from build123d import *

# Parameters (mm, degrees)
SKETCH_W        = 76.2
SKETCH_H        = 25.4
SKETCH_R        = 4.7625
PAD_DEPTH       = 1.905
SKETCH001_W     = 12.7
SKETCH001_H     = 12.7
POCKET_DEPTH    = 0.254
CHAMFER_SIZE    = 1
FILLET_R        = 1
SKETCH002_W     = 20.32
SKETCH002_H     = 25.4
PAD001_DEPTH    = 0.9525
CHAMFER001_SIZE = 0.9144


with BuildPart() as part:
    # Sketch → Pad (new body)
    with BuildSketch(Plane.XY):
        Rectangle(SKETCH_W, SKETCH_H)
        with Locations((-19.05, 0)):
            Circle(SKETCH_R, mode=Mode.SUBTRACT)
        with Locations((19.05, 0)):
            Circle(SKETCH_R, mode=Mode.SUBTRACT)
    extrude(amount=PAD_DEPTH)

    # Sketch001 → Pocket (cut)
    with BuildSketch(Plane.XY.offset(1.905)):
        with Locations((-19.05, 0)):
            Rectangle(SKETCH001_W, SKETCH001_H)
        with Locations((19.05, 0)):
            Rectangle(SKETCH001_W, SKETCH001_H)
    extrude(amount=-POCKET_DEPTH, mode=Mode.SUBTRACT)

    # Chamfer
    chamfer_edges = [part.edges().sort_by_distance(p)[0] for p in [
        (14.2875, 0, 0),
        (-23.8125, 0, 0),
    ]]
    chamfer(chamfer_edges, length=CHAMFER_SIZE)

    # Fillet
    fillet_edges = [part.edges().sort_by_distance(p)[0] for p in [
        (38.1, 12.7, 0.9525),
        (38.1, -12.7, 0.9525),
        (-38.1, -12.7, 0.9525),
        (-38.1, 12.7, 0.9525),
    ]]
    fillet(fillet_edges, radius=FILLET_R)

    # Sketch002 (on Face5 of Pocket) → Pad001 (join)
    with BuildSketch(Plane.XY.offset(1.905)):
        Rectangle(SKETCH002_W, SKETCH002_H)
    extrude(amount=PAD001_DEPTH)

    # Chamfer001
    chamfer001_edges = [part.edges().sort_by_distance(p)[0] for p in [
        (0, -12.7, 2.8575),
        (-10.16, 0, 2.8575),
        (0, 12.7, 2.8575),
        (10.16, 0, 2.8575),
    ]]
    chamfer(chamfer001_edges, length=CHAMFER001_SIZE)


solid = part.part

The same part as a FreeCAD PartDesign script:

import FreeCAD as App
import Part
import Sketcher

V = App.Vector
Q = App.Units.Quantity


def edges_at(feature, points):
    """Names of the edges that pass closest to the given points."""
    edges = feature.Shape.Edges
    near = lambda p: min(range(len(edges)), key=lambda i: edges[i].distToShape(Part.Vertex(*p))[0])
    return sorted({f"Edge{near(p) + 1}" for p in points})

doc = App.newDocument("Part")
body = doc.addObject("PartDesign::Body", "Body")

sketch1 = body.newObject("Sketcher::SketchObject", "Sketch")
sketch1.AttachmentSupport = (doc.getObject("XY_Plane"), [""])
sketch1.MapMode = "FlatFace"
sketch1.addGeometry([
    Part.LineSegment(V(-38.1, 12.7, 0), V(-38.1, -12.7, 0)),
    Part.LineSegment(V(-38.1, -12.7, 0), V(38.1, -12.7, 0)),
    Part.LineSegment(V(38.1, -12.7, 0), V(38.1, 12.7, 0)),
    Part.LineSegment(V(38.1, 12.7, 0), V(-38.1, 12.7, 0)),
    Part.Circle(V(-19.1, 0, 0), V(0, 0, 1), 4.8),
    Part.Circle(V(19.1, 0, 0), V(0, 0, 1), 4.8),
], False)
sketch1.addConstraint([
    Sketcher.Constraint("Coincident", 0, 2, 1, 1),
    Sketcher.Constraint("Coincident", 1, 2, 2, 1),
    Sketcher.Constraint("Coincident", 2, 2, 3, 1),
    Sketcher.Constraint("Coincident", 3, 2, 0, 1),
    Sketcher.Constraint("Vertical", 0),
    Sketcher.Constraint("Horizontal", 1),
    Sketcher.Constraint("Vertical", 2),
    Sketcher.Constraint("Horizontal", 3),
    Sketcher.Constraint("Equal", 4, 5),
    Sketcher.Constraint("Symmetric", 4, 3, 5, 3, -1, 1),
    Sketcher.Constraint("Symmetric", 0, 2, 2, 2, -1, 1),
    Sketcher.Constraint("PointOnObject", 4, 3, -1),
    Sketcher.Constraint("DistanceX", 1, 1, 1, 2, Q("3 in")),
    Sketcher.Constraint("DistanceY", 0, 2, 0, 1, Q("1 in")),
    Sketcher.Constraint("Diameter", 4, Q("0.375 in")),
    Sketcher.Constraint("DistanceX", 4, 3, 5, 3, Q("1.5 in")),
])
pad1 = body.newObject("PartDesign::Pad", "Pad")
pad1.Profile = sketch1
pad1.Length = Q("0.075 in")

sketch2 = body.newObject("Sketcher::SketchObject", "Sketch001")
sketch2.AttachmentSupport = (doc.getObject("XY_Plane"), [""])
sketch2.MapMode = "FlatFace"
sketch2.AttachmentOffset = App.Placement(V(0, 0, 0.075 * 25.4), App.Rotation())
sketch2.addGeometry([
    Part.LineSegment(V(-25, 6, 0), V(-25, -6, 0)),
    Part.LineSegment(V(-25, -6, 0), V(-13, -6, 0)),
    Part.LineSegment(V(-13, -6, 0), V(-13, 6, 0)),
    Part.LineSegment(V(-13, 6, 0), V(-25, 6, 0)),
    Part.LineSegment(V(13, 6, 0), V(13, -6, 0)),
    Part.LineSegment(V(13, -6, 0), V(25, -6, 0)),
    Part.LineSegment(V(25, -6, 0), V(25, 6, 0)),
    Part.LineSegment(V(25, 6, 0), V(13, 6, 0)),
], False)
sketch2.addConstraint([
    Sketcher.Constraint("Coincident", 0, 2, 1, 1),
    Sketcher.Constraint("Coincident", 1, 2, 2, 1),
    Sketcher.Constraint("Coincident", 2, 2, 3, 1),
    Sketcher.Constraint("Coincident", 3, 2, 0, 1),
    Sketcher.Constraint("Coincident", 4, 2, 5, 1),
    Sketcher.Constraint("Coincident", 5, 2, 6, 1),
    Sketcher.Constraint("Coincident", 6, 2, 7, 1),
    Sketcher.Constraint("Coincident", 7, 2, 4, 1),
    Sketcher.Constraint("Vertical", 0),
    Sketcher.Constraint("Horizontal", 1),
    Sketcher.Constraint("Vertical", 2),
    Sketcher.Constraint("Horizontal", 3),
    Sketcher.Constraint("Vertical", 4),
    Sketcher.Constraint("Horizontal", 5),
    Sketcher.Constraint("Vertical", 6),
    Sketcher.Constraint("Horizontal", 7),
    Sketcher.Constraint("Symmetric", 2, 2, 4, 2, -1, 1),
    Sketcher.Constraint("Symmetric", 0, 2, 6, 2, -1, 1),
    Sketcher.Constraint("Horizontal", 1, 2, 4, 2),
    Sketcher.Constraint("Equal", 7, 0),
    Sketcher.Constraint("DistanceX", 1, 1, 1, 2, Q("0.5 in")),
    Sketcher.Constraint("DistanceX", 0, 2, -1, 1, Q("1 in")),
])
pocket1 = body.newObject("PartDesign::Pocket", "Pocket")
pocket1.Profile = sketch2
pocket1.Length = Q("0.01 in")
doc.recompute()

chamfer = body.newObject("PartDesign::Chamfer", "Chamfer")
chamfer.Base = (pocket1, edges_at(pocket1, [(14.287, 0, 0), (-23.812, 0, 0)]))
chamfer.Size = 1
doc.recompute()

fillet = body.newObject("PartDesign::Fillet", "Fillet")
fillet.Base = (chamfer, edges_at(chamfer, [
    (38.1, 12.7, 0.953),
    (38.1, -12.7, 0.953),
    (-38.1, -12.7, 0.953),
    (-38.1, 12.7, 0.953),
]))
fillet.Radius = 1

sketch3 = body.newObject("Sketcher::SketchObject", "Sketch002")
sketch3.AttachmentSupport = (doc.getObject("XY_Plane"), [""])
sketch3.MapMode = "FlatFace"
sketch3.AttachmentOffset = App.Placement(V(0, 0, 0.075 * 25.4), App.Rotation())
sketch3.addGeometry([
    Part.LineSegment(V(-10, 13, 0), V(-10, -13, 0)),
    Part.LineSegment(V(-10, -13, 0), V(10, -13, 0)),
    Part.LineSegment(V(10, -13, 0), V(10, 13, 0)),
    Part.LineSegment(V(10, 13, 0), V(-10, 13, 0)),
], False)
sketch3.addConstraint([
    Sketcher.Constraint("Coincident", 0, 2, 1, 1),
    Sketcher.Constraint("Coincident", 1, 2, 2, 1),
    Sketcher.Constraint("Coincident", 2, 2, 3, 1),
    Sketcher.Constraint("Coincident", 3, 2, 0, 1),
    Sketcher.Constraint("Vertical", 0),
    Sketcher.Constraint("Horizontal", 1),
    Sketcher.Constraint("Vertical", 2),
    Sketcher.Constraint("Horizontal", 3),
    Sketcher.Constraint("Symmetric", 0, 2, 2, 2, -1, 1),
    Sketcher.Constraint("DistanceY", 0, 2, 0, 1, Q("1 in")),
    Sketcher.Constraint("DistanceX", 1, 1, 1, 2, Q("0.8 in")),
])
pad2 = body.newObject("PartDesign::Pad", "Pad001")
pad2.Profile = sketch3
pad2.Length = Q("0.0375 in")
doc.recompute()

chamfer2 = body.newObject("PartDesign::Chamfer", "Chamfer001")
chamfer2.Base = (pad2, edges_at(pad2, [
    (0, -12.7, 2.857),
    (-10.16, 0, 2.857),
    (0, 12.7, 2.857),
    (10.16, 0, 2.857),
]))
chamfer2.Size = Q("0.036 in")

doc.recompute()
